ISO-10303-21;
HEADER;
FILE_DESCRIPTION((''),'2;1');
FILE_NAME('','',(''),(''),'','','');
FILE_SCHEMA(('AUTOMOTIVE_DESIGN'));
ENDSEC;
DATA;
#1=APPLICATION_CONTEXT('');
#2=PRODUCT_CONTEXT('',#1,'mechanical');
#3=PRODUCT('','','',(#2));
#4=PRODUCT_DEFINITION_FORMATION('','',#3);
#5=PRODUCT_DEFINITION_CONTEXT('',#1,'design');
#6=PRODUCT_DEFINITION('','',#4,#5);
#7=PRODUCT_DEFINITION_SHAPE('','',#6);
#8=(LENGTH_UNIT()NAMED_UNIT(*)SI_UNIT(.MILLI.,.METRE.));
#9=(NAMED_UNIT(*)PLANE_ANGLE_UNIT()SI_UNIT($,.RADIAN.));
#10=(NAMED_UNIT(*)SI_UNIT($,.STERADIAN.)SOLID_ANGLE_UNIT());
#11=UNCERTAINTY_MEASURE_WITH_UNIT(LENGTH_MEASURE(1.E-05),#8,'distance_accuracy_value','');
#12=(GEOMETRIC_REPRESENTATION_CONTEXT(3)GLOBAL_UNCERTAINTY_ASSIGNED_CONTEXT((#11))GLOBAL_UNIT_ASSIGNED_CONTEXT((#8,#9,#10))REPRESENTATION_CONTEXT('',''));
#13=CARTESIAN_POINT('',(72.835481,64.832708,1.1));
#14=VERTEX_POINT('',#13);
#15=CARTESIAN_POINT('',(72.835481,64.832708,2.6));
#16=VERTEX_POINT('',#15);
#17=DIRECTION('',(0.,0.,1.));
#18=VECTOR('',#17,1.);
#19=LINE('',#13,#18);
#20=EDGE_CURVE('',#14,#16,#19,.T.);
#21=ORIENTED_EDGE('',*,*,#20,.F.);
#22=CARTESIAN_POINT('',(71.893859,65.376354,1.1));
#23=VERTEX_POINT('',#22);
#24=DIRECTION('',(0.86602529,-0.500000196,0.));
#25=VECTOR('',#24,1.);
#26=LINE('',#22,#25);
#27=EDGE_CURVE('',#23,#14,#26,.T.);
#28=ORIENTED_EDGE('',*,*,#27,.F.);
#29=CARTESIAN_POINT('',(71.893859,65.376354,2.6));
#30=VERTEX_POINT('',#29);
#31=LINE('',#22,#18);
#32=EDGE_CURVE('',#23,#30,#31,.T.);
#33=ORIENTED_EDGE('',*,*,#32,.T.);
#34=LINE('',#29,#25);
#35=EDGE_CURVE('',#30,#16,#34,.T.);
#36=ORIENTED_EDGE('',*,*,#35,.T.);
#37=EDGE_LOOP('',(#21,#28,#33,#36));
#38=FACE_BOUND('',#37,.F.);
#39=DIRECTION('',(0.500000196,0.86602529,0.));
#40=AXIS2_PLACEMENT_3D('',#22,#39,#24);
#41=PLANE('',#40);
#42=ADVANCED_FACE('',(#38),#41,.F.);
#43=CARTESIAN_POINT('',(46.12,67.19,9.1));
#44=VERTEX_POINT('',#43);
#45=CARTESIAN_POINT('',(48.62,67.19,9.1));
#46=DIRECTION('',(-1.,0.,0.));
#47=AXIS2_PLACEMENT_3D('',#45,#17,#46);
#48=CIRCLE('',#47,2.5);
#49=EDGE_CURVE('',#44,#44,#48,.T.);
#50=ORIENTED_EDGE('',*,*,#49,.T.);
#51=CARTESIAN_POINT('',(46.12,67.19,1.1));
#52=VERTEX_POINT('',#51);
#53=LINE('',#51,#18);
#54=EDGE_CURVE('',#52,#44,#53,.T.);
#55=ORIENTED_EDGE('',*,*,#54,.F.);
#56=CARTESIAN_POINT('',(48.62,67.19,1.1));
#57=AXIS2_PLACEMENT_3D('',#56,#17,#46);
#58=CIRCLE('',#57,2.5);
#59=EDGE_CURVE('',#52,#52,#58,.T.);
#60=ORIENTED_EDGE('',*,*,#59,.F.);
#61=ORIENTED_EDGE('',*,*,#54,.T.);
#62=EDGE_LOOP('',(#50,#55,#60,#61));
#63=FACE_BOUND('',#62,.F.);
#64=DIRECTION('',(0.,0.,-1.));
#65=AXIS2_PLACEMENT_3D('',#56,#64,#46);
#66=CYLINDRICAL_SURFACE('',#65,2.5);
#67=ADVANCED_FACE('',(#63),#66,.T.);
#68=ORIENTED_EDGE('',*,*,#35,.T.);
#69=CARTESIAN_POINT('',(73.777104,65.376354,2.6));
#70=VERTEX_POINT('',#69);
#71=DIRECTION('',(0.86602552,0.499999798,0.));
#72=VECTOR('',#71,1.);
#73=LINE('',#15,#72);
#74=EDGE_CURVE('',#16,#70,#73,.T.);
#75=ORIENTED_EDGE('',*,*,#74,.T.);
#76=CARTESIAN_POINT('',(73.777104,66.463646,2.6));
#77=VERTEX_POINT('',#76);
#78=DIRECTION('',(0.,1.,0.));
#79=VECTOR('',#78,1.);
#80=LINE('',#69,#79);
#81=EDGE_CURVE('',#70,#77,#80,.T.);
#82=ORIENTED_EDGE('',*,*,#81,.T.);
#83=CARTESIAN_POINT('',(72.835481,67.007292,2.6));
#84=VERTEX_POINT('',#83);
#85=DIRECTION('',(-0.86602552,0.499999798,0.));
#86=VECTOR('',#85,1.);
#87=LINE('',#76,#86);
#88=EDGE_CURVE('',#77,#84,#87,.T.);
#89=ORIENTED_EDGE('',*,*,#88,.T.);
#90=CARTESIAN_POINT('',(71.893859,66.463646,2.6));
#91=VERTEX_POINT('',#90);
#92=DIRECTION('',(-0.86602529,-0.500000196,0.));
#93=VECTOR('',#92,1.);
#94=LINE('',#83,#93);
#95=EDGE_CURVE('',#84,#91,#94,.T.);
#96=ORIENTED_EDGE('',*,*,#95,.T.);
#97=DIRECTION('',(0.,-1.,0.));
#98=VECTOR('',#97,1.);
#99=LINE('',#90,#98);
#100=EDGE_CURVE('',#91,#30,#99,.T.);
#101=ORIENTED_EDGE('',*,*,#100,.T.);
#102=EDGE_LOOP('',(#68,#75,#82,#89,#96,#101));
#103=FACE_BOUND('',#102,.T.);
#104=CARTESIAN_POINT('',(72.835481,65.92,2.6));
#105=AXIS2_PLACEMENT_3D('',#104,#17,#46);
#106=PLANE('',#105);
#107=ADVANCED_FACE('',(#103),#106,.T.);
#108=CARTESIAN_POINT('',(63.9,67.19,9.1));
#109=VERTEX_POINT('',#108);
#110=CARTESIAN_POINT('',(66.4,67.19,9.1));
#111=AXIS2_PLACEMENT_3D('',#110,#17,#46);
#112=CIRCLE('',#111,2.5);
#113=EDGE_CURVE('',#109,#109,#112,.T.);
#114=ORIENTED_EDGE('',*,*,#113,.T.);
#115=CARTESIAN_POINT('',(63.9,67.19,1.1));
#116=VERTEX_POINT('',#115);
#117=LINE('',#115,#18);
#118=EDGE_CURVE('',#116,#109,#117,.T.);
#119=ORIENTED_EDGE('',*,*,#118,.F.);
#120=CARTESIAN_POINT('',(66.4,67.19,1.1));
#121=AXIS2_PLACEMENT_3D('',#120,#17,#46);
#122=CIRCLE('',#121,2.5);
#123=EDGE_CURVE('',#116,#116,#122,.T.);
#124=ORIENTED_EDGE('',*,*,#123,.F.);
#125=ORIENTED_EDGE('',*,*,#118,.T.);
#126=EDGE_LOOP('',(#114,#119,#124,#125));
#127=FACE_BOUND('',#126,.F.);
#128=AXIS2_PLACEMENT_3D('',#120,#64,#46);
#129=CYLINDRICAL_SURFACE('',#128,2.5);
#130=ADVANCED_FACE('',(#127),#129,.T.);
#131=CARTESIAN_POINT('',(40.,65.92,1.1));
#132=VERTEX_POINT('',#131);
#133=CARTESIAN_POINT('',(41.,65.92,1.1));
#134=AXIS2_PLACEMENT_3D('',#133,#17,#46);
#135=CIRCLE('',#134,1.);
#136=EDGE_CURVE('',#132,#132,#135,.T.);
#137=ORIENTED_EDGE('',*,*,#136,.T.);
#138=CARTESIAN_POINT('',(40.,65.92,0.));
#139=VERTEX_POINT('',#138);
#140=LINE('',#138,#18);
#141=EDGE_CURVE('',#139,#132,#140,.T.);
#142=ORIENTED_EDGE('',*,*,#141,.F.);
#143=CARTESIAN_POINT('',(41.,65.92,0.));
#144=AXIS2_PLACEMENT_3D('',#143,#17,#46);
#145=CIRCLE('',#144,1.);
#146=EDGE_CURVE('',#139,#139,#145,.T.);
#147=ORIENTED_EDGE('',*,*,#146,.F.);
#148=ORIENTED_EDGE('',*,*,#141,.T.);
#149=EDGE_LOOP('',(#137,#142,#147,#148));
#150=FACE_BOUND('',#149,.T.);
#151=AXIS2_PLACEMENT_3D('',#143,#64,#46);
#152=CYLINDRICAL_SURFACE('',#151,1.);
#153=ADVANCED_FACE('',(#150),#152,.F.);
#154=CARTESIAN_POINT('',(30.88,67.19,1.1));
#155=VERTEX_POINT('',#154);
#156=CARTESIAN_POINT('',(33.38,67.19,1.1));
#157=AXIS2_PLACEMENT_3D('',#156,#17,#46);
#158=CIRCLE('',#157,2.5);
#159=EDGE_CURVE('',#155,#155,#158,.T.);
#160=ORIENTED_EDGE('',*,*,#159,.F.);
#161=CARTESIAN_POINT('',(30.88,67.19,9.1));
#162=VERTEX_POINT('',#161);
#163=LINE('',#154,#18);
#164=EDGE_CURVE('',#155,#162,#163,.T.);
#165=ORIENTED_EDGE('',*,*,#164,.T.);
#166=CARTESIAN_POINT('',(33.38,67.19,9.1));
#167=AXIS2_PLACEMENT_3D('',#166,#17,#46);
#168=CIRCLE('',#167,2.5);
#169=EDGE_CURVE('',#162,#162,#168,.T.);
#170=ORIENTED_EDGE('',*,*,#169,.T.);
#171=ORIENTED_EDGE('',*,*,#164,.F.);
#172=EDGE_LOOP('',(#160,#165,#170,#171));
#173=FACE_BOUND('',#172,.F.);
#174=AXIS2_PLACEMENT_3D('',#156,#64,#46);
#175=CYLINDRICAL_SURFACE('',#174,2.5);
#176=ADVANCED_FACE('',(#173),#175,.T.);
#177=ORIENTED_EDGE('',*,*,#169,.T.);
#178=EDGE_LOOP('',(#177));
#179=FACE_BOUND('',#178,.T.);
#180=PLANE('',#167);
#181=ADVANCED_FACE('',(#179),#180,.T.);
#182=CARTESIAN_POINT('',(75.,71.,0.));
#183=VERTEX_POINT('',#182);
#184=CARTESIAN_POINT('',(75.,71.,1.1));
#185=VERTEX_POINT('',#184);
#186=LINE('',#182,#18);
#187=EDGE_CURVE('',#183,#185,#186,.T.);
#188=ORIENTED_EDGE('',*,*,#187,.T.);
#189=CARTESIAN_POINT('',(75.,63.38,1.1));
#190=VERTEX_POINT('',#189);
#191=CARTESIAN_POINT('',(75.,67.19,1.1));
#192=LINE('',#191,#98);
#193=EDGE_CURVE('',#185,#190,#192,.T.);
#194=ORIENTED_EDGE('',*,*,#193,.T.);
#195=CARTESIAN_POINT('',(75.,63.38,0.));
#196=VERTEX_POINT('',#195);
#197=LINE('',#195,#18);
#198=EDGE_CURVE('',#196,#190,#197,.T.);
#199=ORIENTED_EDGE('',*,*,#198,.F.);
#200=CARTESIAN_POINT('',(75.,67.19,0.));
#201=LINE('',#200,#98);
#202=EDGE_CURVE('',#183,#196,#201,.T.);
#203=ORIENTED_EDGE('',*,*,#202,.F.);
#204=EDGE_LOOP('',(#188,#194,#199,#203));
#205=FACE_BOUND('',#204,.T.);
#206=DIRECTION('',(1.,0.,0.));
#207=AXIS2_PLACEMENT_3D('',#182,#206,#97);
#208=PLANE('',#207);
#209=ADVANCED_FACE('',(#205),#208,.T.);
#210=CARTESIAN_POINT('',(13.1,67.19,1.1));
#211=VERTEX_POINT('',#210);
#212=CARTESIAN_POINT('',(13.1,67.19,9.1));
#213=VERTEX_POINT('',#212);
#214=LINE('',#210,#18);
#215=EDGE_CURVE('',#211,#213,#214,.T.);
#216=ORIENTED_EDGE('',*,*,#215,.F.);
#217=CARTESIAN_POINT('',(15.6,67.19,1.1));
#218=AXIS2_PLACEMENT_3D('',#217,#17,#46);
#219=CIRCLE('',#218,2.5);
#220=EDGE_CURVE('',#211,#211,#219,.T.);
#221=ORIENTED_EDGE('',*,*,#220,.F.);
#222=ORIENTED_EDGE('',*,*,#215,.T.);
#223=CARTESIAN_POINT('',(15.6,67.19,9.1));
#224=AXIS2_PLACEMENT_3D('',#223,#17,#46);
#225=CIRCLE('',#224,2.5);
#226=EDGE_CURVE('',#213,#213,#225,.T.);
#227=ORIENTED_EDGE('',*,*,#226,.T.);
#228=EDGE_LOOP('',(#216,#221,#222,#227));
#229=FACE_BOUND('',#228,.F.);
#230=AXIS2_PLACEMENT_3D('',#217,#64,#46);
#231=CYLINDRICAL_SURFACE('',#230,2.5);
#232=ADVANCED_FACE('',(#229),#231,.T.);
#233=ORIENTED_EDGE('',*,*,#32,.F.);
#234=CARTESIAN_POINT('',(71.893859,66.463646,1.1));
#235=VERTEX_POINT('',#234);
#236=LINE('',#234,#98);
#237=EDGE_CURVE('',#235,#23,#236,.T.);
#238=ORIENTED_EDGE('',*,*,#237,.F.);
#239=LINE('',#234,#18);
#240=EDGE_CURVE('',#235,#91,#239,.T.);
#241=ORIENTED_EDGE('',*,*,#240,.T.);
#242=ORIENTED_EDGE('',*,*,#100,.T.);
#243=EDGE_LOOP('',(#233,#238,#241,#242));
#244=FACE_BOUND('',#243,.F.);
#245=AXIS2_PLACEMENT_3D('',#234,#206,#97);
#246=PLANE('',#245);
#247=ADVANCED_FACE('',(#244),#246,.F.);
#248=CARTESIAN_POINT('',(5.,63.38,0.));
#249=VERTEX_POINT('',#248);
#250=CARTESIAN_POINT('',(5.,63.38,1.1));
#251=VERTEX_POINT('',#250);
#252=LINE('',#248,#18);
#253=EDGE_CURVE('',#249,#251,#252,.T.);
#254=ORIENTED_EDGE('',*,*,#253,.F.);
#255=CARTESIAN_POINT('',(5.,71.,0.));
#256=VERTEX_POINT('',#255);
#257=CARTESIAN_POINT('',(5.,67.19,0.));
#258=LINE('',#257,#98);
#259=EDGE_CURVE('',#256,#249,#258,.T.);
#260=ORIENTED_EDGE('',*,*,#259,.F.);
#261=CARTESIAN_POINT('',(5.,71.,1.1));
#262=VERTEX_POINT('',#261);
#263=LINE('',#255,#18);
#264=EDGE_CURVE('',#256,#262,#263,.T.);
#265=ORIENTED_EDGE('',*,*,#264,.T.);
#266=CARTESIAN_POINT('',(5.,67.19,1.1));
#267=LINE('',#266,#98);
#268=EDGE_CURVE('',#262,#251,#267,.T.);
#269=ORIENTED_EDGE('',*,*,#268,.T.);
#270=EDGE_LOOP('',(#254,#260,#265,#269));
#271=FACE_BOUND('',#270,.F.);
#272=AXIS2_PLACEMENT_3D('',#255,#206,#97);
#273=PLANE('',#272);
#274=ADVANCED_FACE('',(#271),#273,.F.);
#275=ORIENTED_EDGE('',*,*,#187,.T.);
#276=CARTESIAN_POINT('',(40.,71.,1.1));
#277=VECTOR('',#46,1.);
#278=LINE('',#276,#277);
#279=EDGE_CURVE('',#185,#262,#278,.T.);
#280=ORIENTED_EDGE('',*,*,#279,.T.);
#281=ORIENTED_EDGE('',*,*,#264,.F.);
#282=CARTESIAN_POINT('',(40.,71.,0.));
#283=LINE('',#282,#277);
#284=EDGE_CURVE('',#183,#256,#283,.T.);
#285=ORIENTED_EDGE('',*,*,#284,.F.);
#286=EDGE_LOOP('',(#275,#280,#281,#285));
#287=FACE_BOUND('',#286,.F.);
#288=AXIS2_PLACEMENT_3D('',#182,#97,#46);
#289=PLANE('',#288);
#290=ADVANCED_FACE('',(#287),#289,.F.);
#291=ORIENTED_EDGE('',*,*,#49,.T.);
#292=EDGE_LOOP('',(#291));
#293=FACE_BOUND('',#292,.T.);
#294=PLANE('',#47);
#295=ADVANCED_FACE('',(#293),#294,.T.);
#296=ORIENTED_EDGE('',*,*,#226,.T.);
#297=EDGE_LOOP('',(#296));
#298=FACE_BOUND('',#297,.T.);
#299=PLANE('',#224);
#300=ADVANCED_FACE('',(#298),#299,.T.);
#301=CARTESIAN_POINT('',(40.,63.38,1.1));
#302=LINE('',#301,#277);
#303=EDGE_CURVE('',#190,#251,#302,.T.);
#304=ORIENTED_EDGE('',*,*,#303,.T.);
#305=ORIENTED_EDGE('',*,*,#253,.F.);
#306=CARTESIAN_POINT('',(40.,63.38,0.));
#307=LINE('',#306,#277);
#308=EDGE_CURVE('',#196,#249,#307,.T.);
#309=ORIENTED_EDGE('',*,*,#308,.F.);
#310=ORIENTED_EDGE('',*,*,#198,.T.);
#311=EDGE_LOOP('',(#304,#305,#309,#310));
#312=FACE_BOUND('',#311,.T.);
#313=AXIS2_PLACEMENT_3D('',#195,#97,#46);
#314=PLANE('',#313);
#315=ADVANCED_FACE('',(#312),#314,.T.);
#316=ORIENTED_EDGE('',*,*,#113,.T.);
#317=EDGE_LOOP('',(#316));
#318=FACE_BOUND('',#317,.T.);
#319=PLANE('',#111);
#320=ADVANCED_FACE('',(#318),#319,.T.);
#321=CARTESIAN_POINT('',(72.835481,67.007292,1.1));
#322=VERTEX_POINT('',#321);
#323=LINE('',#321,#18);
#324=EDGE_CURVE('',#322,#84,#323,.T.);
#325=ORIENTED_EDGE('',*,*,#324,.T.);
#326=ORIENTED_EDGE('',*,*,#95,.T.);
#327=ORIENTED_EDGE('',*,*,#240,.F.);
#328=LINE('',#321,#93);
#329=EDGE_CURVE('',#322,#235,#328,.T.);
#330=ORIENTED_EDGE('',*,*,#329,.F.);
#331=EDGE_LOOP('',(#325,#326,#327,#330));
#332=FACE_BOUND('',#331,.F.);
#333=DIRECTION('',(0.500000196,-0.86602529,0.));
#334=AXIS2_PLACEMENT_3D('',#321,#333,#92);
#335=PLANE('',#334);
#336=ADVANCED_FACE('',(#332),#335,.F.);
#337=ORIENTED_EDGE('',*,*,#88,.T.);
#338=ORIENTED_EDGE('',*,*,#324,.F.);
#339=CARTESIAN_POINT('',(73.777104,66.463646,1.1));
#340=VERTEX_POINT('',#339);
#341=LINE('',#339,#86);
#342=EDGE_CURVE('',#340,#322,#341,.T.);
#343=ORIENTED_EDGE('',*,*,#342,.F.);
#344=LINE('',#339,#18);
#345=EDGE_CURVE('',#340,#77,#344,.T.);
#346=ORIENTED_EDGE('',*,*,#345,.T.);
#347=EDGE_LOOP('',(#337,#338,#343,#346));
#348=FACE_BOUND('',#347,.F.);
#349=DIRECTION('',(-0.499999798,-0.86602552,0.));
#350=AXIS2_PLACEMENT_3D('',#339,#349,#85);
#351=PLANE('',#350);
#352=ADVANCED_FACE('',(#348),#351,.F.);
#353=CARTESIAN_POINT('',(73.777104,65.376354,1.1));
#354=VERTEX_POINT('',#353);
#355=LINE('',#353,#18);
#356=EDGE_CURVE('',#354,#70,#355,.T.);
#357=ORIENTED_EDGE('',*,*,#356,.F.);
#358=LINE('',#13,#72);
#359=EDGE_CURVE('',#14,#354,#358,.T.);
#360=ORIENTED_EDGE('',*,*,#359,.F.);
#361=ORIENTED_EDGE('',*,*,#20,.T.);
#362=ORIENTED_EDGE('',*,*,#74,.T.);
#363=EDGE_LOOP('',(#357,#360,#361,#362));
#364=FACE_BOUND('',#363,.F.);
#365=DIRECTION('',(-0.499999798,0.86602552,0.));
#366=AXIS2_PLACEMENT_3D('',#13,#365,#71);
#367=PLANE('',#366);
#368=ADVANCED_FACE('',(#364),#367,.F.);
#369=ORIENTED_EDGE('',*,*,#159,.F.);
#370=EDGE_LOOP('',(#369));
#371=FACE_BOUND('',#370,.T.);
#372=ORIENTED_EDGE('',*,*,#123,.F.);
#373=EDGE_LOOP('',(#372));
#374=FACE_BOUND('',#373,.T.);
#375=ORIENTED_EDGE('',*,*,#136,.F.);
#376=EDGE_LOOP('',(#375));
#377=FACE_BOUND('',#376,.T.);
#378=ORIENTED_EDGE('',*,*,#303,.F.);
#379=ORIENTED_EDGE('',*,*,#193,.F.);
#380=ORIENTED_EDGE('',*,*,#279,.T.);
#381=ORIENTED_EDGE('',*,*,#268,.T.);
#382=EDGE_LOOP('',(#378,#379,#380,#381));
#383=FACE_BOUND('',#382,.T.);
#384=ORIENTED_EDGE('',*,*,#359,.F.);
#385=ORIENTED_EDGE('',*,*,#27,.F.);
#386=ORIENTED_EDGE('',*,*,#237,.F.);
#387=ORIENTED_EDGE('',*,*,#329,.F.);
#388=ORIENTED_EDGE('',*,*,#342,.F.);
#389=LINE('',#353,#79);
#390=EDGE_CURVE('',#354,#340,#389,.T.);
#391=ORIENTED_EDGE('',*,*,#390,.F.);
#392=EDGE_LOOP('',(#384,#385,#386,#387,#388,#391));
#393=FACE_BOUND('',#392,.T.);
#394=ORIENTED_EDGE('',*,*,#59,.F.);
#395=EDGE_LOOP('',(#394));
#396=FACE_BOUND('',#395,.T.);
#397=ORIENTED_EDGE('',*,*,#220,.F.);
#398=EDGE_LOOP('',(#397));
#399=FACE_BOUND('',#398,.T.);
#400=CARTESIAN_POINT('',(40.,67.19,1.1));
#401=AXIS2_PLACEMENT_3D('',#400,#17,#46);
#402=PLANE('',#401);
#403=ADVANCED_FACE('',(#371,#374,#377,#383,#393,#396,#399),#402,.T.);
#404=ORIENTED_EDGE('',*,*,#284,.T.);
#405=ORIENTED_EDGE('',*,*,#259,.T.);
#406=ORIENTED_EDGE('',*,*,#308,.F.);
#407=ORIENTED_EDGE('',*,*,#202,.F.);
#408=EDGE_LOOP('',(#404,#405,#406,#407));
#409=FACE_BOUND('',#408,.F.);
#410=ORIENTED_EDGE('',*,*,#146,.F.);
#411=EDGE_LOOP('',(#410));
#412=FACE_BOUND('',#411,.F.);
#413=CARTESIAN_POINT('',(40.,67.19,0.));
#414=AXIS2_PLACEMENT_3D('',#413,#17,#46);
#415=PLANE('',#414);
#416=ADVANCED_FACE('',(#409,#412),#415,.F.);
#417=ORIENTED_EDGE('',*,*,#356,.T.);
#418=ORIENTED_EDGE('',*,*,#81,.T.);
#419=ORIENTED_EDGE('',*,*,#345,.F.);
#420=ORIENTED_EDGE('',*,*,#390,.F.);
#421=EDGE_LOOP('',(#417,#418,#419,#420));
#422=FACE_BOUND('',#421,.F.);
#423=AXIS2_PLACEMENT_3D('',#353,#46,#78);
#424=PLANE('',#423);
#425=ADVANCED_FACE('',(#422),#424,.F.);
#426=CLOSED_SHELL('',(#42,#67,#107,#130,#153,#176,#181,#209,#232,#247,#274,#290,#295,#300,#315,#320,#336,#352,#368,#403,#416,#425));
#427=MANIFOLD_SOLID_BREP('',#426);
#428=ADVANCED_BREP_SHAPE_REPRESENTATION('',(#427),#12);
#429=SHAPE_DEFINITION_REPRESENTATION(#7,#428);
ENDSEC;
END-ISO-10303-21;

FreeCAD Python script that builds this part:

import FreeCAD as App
import Part
import Sketcher

V = App.Vector
Q = App.Units.Quantity


def add_polygon(sketch, points):
    """Adds a closed chain of lines whose ends are joined by coincident constraints."""
    first, n = sketch.GeometryCount, len(points)
    for a, b in zip(points, points[1:] + points[:1]):
        sketch.addGeometry(Part.LineSegment(App.Vector(*a, 0), App.Vector(*b, 0)), False)
    for i in range(n):
        sketch.addConstraint(Sketcher.Constraint("Coincident", first + i, 2, first + (i + 1) % n, 1))

doc = App.newDocument("Part")
body = doc.addObject("PartDesign::Body", "Body")

sketch1 = doc.addObject("Sketcher::SketchObject", "Sketch")
body.addObject(sketch1)
sketch1.AttachmentSupport = (doc.XY_Plane, [""])
sketch1.MapMode = "FlatFace"
add_polygon(sketch1, [(0, 7.62), (0, 0), (70, 0), (70, 7.62)])
sketch1.addGeometry(Part.Circle(V(34, 5.08, 0), V(0, 0, 1), 1), False)
sketch1.addConstraint(Sketcher.Constraint("Vertical", 0))
sketch1.addConstraint(Sketcher.Constraint("Horizontal", 1))
sketch1.addConstraint(Sketcher.Constraint("Vertical", 2))
sketch1.addConstraint(Sketcher.Constraint("Horizontal", 3))
sketch1.addConstraint(Sketcher.Constraint("Coincident", 0, 2, -1, 1))
sketch1.addConstraint(Sketcher.Constraint("Diameter", 4, 2.0))
sketch1.addConstraint(Sketcher.Constraint("DistanceX", 1, 1, 1, 2, 70.0))
sketch1.addConstraint(Sketcher.Constraint("DistanceX", -1, 1, 4, 3, 34.0))
sketch1.addConstraint(Sketcher.Constraint("DistanceY", 0, 2, 0, 1, 7.62))
sketch1.addConstraint(Sketcher.Constraint("DistanceY", -1, 1, 4, 3, 5.08))
pad1 = doc.addObject("PartDesign::Pad", "Pad")
body.addObject(pad1)
pad1.Profile = sketch1
pad1.Length = 1.1

sketch2 = doc.addObject("Sketcher::SketchObject", "Sketch001")
body.addObject(sketch2)
sketch2.AttachmentSupport = (doc.XY_Plane, [""])
sketch2.MapMode = "FlatFace"
sketch2.AttachmentOffset = App.Placement(V(0, 0, 1.1), App.Rotation())
sketch2.addGeometry(Part.Circle(V(26.38, 3.81, 0), V(0, 0, 1), 2.5), False)
sketch2.addGeometry(Part.Circle(V(41.62, 3.81, 0), V(0, 0, 1), 2.5), False)
sketch2.addGeometry(Part.Circle(V(59.4, 3.81, 0), V(0, 0, 1), 2.5), False)
sketch2.addGeometry(Part.Circle(V(8.6, 3.81, 0), V(0, 0, 1), 2.5), False)
sketch2.addConstraint(Sketcher.Constraint("Equal", 0, 1))
sketch2.addConstraint(Sketcher.Constraint("Equal", 1, 2))
sketch2.addConstraint(Sketcher.Constraint("Equal", 2, 3))
sketch2.addConstraint(Sketcher.Constraint("Horizontal", 0, 3, 1, 3))
sketch2.addConstraint(Sketcher.Constraint("Horizontal", 1, 3, 2, 3))
sketch2.addConstraint(Sketcher.Constraint("Horizontal", 2, 3, 3, 3))
sketch2.addConstraint(Sketcher.Constraint("Diameter", 0, 5.0))
sketch2.addConstraint(Sketcher.Constraint("DistanceX", -1, 1, 2, 3, 59.4))
sketch2.addConstraint(Sketcher.Constraint("DistanceX", -1, 1, 3, 3, 8.6))
sketch2.addConstraint(Sketcher.Constraint("DistanceX", -1, 1, 0, 3, 26.38))
sketch2.addConstraint(Sketcher.Constraint("DistanceY", -1, 1, 0, 3, 3.81))
sketch2.addConstraint(Sketcher.Constraint("DistanceX", -1, 1, 1, 3, 41.62))
pad2 = doc.addObject("PartDesign::Pad", "Pad001")
body.addObject(pad2)
pad2.Profile = sketch2
pad2.Length = 8

sketch3 = doc.addObject("Sketcher::SketchObject", "Sketch002")
body.addObject(sketch3)
sketch3.AttachmentSupport = (doc.XY_Plane, [""])
sketch3.MapMode = "FlatFace"
sketch3.AttachmentOffset = App.Placement(V(0, 0, 1.1), App.Rotation())
add_polygon(sketch3, [(3.106141, 4.536354), (3.106141, 5.623646), (2.164519, 6.167292), (1.222896, 5.623646), (1.222896, 4.536354), (2.164519, 3.992708)])
sketch3.addConstraint(Sketcher.Constraint("Vertical", 0))
sketch3.addConstraint(Sketcher.Constraint("Vertical", 3))
sketch3.addConstraint(Sketcher.Constraint("Parallel", 1, 4))
sketch3.addConstraint(Sketcher.Constraint("Parallel", 2, 5))
sketch3.addConstraint(Sketcher.Constraint("Horizontal", 0, 2, 2, 2))
sketch3.addConstraint(Sketcher.Constraint("Horizontal", 3, 2, 5, 2))
sketch3.addConstraint(Sketcher.Constraint("Vertical", 1, 2, 4, 2))
sketch3.addConstraint(Sketcher.Constraint("Angle", 1, Q("149.999987 deg")))
sketch3.addConstraint(Sketcher.Constraint("DistanceY", 0, 1, 0, 2, 1.087292))
sketch3.addConstraint(Sketcher.Constraint("Distance", 1, 1.087292))
sketch3.addConstraint(Sketcher.Constraint("DistanceX", -1, 1, 0, 2, 3.106141))
sketch3.addConstraint(Sketcher.Constraint("DistanceY", -1, 1, 1, 2, 6.167292))
pad3 = doc.addObject("PartDesign::Pad", "Pad002")
body.addObject(pad3)
pad3.Profile = sketch3
pad3.Length = 1.5
body2 = doc.addObject("PartDesign::Body", "Body001")
doc.recompute()

body.Placement = App.Placement(V(75, 71, 0), App.Rotation(V(0, 0, 1), 180))
boolean = doc.addObject("PartDesign::Boolean", "Boolean")
body2.addObject(boolean)
boolean.Type = "Fuse"
boolean.addObjects([body])

doc.recompute()
